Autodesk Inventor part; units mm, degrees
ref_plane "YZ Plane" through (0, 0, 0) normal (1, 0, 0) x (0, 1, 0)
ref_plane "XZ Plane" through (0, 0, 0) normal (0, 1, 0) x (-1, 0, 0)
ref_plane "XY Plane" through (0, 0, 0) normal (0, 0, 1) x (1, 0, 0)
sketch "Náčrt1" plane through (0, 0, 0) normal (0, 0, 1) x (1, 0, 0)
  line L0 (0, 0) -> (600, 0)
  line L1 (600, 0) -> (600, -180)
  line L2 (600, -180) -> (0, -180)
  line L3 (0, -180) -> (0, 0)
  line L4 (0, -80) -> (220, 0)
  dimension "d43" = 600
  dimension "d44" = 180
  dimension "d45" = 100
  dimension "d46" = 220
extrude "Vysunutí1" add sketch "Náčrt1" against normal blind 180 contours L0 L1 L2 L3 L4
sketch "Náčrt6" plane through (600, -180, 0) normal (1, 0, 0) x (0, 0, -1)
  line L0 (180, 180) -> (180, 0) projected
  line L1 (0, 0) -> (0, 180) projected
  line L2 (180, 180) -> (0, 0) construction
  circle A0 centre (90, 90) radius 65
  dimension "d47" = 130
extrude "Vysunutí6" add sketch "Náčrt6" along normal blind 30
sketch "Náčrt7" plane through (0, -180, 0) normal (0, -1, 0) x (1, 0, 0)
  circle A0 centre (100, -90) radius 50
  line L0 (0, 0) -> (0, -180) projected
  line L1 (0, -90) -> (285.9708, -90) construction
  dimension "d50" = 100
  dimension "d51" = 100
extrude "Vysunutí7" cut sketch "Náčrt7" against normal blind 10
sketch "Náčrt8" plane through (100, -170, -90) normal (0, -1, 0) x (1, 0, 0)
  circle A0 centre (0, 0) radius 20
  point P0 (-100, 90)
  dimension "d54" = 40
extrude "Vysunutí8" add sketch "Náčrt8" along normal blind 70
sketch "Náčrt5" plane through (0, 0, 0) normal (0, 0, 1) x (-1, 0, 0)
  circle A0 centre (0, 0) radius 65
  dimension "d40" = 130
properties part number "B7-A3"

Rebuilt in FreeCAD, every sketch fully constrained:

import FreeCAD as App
import Part
import Sketcher
from FreeCAD import Vector
Q = App.Units.Quantity


def add_polygon(sketch, points):
    """Adds a closed chain of lines whose ends are joined by coincident constraints."""
    first, n = sketch.GeometryCount, len(points)
    for a, b in zip(points, points[1:] + points[:1]):
        sketch.addGeometry(Part.LineSegment(App.Vector(*a, 0), App.Vector(*b, 0)), False)
    for i in range(n):
        sketch.addConstraint(Sketcher.Constraint("Coincident", first + i, 2, first + (i + 1) % n, 1))

doc = App.newDocument("Part")
body = doc.addObject("PartDesign::Body", "Body")

# Sketch on XY plane
sketch1 = doc.addObject("Sketcher::SketchObject", "Sketch")
body.addObject(sketch1)
sketch1.AttachmentSupport = (doc.XY_Plane, [""])
sketch1.MapMode = "FlatFace"
add_polygon(sketch1, [(600, 0), (220, 0), (0, -80), (0, -180), (600, -180)])  # lines 0-4
sketch1.addConstraint(Sketcher.Constraint("Horizontal", 0))
sketch1.addConstraint(Sketcher.Constraint("Vertical", 2))
sketch1.addConstraint(Sketcher.Constraint("Horizontal", 3))
sketch1.addConstraint(Sketcher.Constraint("Vertical", 4))
sketch1.addConstraint(Sketcher.Constraint("PointOnObject", 0, 2, -1))
sketch1.addConstraint(Sketcher.Constraint("PointOnObject", 1, 2, -2))
sketch1.addConstraint(Sketcher.Constraint("DistanceX", 3, 1, 3, 2, Q("600 mm")))
sketch1.addConstraint(Sketcher.Constraint("DistanceY", 2, 2, 2, 1, Q("100 mm")))
sketch1.addConstraint(Sketcher.Constraint("DistanceY", 4, 1, 4, 2, Q("180 mm")))
sketch1.addConstraint(Sketcher.Constraint("DistanceX", -1, 1, 0, 2, Q("220 mm")))
pad1 = doc.addObject("PartDesign::Pad", "Pad")
body.addObject(pad1)
pad1.Profile = sketch1
pad1.Length = 180
pad1.Reversed = True

# Sketch on YZ plane
sketch2 = doc.addObject("Sketcher::SketchObject", "Sketch001")
body.addObject(sketch2)
sketch2.AttachmentSupport = (doc.YZ_Plane, [""])
sketch2.MapMode = "FlatFace"
sketch2.AttachmentOffset = App.Placement(Vector(0, 0, 600), App.Rotation())
sketch2.addGeometry(Part.Circle(Vector(-90, -90, 0), Vector(0, 0, 1), 65), False)
sketch2.addConstraint(Sketcher.Constraint("Diameter", 0, Q("130 mm")))
sketch2.addConstraint(Sketcher.Constraint("DistanceX", 0, 3, -1, 1, Q("90 mm")))
sketch2.addConstraint(Sketcher.Constraint("DistanceY", 0, 3, -1, 1, Q("90 mm")))
pad2 = doc.addObject("PartDesign::Pad", "Pad001")
body.addObject(pad2)
pad2.Profile = sketch2
pad2.Length = 30

# Sketch on XZ plane
sketch3 = doc.addObject("Sketcher::SketchObject", "Sketch002")
body.addObject(sketch3)
sketch3.AttachmentSupport = (doc.XZ_Plane, [""])
sketch3.MapMode = "FlatFace"
sketch3.AttachmentOffset = App.Placement(Vector(0, 0, 180), App.Rotation())
sketch3.addGeometry(Part.Circle(Vector(100, -90, 0), Vector(0, 0, 1), 50), False)
sketch3.addConstraint(Sketcher.Constraint("Diameter", 0, Q("100 mm")))
sketch3.addConstraint(Sketcher.Constraint("DistanceX", -1, 1, 0, 3, Q("100 mm")))
sketch3.addConstraint(Sketcher.Constraint("DistanceY", 0, 3, -1, 1, Q("90 mm")))
pocket1 = doc.addObject("PartDesign::Pocket", "Pocket")
body.addObject(pocket1)
pocket1.Profile = sketch3
pocket1.Length = 10

# Sketch on XZ plane
sketch4 = doc.addObject("Sketcher::SketchObject", "Sketch003")
body.addObject(sketch4)
sketch4.AttachmentSupport = (doc.XZ_Plane, [""])
sketch4.MapMode = "FlatFace"
sketch4.AttachmentOffset = App.Placement(Vector(0, 0, 170), App.Rotation())
sketch4.addGeometry(Part.Circle(Vector(100, -90, 0), Vector(0, 0, 1), 20), False)
sketch4.addConstraint(Sketcher.Constraint("Diameter", 0, Q("40 mm")))
sketch4.addConstraint(Sketcher.Constraint("DistanceX", -1, 1, 0, 3, Q("100 mm")))
sketch4.addConstraint(Sketcher.Constraint("DistanceY", 0, 3, -1, 1, Q("90 mm")))
pad3 = doc.addObject("PartDesign::Pad", "Pad002")
body.addObject(pad3)
pad3.Profile = sketch4
pad3.Length = 70

doc.recompute()
